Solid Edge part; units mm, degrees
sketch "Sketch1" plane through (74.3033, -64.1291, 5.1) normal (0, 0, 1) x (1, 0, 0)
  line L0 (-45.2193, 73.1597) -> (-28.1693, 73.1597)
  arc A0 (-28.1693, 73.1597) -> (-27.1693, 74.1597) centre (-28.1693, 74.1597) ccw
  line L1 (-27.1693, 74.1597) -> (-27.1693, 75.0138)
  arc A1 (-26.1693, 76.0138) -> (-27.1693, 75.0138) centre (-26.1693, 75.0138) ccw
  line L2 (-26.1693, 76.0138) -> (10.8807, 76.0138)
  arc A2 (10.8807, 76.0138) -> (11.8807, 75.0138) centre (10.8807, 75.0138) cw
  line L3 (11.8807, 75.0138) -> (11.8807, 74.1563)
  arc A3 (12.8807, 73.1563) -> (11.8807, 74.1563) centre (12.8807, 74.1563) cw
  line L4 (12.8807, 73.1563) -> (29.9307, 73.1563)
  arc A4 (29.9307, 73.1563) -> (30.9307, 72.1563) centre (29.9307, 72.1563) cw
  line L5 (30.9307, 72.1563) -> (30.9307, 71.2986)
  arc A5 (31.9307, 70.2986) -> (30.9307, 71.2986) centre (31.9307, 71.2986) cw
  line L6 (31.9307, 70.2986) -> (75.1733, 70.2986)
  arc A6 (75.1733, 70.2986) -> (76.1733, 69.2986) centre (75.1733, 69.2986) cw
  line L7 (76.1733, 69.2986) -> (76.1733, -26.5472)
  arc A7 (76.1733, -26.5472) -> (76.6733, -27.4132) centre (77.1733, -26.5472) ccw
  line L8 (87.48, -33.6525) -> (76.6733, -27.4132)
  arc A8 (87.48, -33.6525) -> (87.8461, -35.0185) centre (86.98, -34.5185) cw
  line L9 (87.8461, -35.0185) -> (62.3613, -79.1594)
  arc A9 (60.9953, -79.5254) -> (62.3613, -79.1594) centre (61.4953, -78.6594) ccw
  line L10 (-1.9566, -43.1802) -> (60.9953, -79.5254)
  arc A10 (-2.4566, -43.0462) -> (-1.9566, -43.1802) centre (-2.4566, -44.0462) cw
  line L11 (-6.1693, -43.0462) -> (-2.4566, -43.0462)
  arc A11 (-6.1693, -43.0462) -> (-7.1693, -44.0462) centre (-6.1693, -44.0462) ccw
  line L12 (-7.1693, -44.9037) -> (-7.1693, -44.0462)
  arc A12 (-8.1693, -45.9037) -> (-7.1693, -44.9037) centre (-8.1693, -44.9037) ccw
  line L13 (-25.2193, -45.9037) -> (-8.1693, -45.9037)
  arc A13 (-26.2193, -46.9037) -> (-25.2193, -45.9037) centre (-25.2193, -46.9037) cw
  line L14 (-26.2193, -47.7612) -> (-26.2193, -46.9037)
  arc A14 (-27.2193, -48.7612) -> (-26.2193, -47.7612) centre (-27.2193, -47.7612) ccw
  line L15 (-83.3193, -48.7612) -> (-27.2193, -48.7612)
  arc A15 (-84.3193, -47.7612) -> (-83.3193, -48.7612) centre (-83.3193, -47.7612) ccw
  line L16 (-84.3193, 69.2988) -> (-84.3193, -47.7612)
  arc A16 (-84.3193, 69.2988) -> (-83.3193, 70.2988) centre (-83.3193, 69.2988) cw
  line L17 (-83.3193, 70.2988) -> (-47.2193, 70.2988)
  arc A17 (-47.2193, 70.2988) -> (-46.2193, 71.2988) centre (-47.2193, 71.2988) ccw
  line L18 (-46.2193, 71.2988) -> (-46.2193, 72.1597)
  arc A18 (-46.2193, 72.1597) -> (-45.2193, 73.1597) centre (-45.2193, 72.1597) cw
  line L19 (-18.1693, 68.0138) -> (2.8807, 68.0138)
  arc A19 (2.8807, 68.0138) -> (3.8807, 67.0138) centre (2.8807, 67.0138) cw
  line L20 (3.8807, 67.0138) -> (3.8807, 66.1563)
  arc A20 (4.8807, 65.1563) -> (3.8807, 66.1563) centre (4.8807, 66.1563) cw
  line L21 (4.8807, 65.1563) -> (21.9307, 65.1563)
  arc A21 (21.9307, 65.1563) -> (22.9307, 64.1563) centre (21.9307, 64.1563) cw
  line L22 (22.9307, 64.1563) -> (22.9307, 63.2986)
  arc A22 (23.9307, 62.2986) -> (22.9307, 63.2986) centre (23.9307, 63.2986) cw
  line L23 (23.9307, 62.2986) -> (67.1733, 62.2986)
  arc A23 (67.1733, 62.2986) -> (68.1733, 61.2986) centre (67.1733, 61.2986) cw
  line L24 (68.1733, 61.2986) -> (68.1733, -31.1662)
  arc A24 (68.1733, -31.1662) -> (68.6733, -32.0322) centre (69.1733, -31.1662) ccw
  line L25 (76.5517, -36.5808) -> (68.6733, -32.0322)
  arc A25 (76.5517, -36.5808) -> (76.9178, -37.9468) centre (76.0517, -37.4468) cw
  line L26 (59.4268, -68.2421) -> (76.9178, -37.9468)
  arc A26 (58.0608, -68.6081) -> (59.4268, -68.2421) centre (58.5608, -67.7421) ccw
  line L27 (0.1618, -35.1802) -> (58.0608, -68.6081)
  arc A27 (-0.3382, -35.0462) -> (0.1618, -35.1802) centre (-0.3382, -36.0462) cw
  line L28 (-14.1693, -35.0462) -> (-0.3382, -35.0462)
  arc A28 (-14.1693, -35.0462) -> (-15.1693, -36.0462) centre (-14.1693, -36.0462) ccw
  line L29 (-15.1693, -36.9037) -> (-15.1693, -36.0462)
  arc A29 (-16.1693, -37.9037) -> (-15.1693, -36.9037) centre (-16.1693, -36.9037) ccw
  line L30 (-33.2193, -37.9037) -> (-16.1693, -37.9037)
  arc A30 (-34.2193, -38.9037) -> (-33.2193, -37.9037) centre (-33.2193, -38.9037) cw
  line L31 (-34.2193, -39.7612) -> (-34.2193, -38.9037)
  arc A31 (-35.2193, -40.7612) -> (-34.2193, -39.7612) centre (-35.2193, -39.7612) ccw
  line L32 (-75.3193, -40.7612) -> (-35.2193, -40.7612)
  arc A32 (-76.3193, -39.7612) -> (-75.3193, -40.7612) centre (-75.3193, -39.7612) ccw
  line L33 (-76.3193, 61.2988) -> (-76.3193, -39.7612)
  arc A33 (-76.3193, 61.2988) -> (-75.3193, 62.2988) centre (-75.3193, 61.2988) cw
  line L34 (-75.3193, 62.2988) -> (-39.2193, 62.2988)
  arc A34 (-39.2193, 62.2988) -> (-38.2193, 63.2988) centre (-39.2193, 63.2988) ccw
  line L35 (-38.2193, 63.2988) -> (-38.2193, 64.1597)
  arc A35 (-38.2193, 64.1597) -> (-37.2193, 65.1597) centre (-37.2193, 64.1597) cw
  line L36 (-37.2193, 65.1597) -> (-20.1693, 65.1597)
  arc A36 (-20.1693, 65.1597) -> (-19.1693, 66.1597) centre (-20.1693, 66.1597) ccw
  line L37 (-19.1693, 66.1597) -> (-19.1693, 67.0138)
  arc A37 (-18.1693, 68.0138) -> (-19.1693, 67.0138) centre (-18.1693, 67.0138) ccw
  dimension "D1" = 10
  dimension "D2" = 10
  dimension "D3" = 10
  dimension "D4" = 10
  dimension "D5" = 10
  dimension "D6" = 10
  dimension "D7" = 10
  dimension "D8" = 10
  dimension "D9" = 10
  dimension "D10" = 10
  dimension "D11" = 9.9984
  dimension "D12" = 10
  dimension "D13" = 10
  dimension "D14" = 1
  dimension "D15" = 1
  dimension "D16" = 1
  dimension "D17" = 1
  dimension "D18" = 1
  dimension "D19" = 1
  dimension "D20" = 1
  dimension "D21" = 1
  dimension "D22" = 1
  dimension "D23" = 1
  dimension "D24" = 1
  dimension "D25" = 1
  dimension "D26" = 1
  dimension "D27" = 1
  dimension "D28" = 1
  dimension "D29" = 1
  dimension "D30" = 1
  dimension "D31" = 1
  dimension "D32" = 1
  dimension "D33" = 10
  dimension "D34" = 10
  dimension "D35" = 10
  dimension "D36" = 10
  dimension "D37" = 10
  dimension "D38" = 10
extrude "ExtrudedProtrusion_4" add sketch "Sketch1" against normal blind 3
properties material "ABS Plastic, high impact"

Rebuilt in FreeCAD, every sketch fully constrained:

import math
import FreeCAD as App
import Part
import Sketcher
from FreeCAD import Vector
Q = App.Units.Quantity

doc = App.newDocument("Part")
params = doc.addObject("Spreadsheet::Sheet", "Params")
for row, (alias, value) in enumerate([
    ("sketch1_radius", "1 mm"),
    ("sketch1_width", "36.1 mm"),
    ("sketch1_width2", "56.1 mm"),
    ("sketch1_width3", "40.1 mm"),
    ("sketch1_width4", "17.05 mm"),
    ("pad1_length", "3 mm"),
], start=1):
    params.set(f"A{row}", alias)
    params.set(f"B{row}", "=" + value)
    params.setAlias(f"B{row}", alias)

body = doc.addObject("PartDesign::Body", "Body")

sketch1 = body.newObject("Sketcher::SketchObject", "Sketch")
sketch1.AttachmentSupport = (doc.getObject("XY_Plane"), [""])
sketch1.MapMode = "FlatFace"
sketch1.AttachmentOffset = App.Placement(Vector(0, 0, 5.1), App.Rotation())
sketch1.addGeometry([
    Part.LineSegment(Vector(46.134, 9.0306, 0), Vector(29.084, 9.0306, 0)),
    Part.ArcOfCircle(Part.Circle(Vector(29.084, 8.0306, 0), Vector(0, 0, 1), 1), math.radians(90), math.radians(180)),
    Part.LineSegment(Vector(28.084, 8.0306, 0), Vector(28.084, 7.1697, 0)),
    Part.ArcOfCircle(Part.Circle(Vector(27.084, 7.1697, 0), Vector(0, 0, 1), 1), math.radians(-90), math.radians(0)),
    Part.LineSegment(Vector(27.084, 6.1697, 0), Vector(-9.016, 6.1697, 0)),
    Part.ArcOfCircle(Part.Circle(Vector(-9.016, 5.1697, 0), Vector(0, 0, 1), 1), math.radians(90), math.radians(180)),
    Part.LineSegment(Vector(-10.016, 5.1697, 0), Vector(-10.016, -111.8903, 0)),
    Part.ArcOfCircle(Part.Circle(Vector(-9.016, -111.8903, 0), Vector(0, 0, 1), 1), math.radians(180), math.radians(270)),
    Part.LineSegment(Vector(-9.016, -112.8903, 0), Vector(47.084, -112.8903, 0)),
    Part.ArcOfCircle(Part.Circle(Vector(47.084, -111.8903, 0), Vector(0, 0, 1), 1), math.radians(-90), math.radians(0)),
    Part.LineSegment(Vector(48.084, -111.8903, 0), Vector(48.084, -111.0328, 0)),
    Part.ArcOfCircle(Part.Circle(Vector(49.084, -111.0328, 0), Vector(0, 0, 1), 1), math.radians(90), math.radians(180)),
    Part.LineSegment(Vector(49.084, -110.0328, 0), Vector(66.134, -110.0328, 0)),
    Part.ArcOfCircle(Part.Circle(Vector(66.134, -109.0328, 0), Vector(0, 0, 1), 1), math.radians(-90), math.radians(0)),
    Part.LineSegment(Vector(67.134, -109.0328, 0), Vector(67.134, -108.1753, 0)),
    Part.ArcOfCircle(Part.Circle(Vector(68.134, -108.1753, 0), Vector(0, 0, 1), 1), math.radians(90), math.radians(180)),
    Part.LineSegment(Vector(68.134, -107.1753, 0), Vector(71.8467, -107.1753, 0)),
    Part.ArcOfCircle(Part.Circle(Vector(71.8467, -108.1753, 0), Vector(0, 0, 1), 1), math.radians(59.999272), math.radians(90)),
    Part.LineSegment(Vector(72.3467, -107.3093, 0), Vector(135.2986, -143.6545, 0)),
    Part.ArcOfCircle(Part.Circle(Vector(135.7986, -142.7885, 0), Vector(0, 0, 1), 0.999978), math.radians(-120.000728), math.radians(-30.000728)),
    Part.LineSegment(Vector(136.6646, -143.2885, 0), Vector(162.1494, -99.1476, 0)),
    Part.ArcOfCircle(Part.Circle(Vector(161.2833, -98.6476, 0), Vector(0, 0, 1), 0.999978), math.radians(-29.997863), math.radians(59.999272)),
    Part.LineSegment(Vector(161.7833, -97.7816, 0), Vector(150.9766, -91.5423, 0)),
    Part.ArcOfCircle(Part.Circle(Vector(151.4766, -90.6763, 0), Vector(0, 0, 1), 1), math.radians(180), math.radians(239.999272)),
    Part.LineSegment(Vector(150.4766, -90.6763, 0), Vector(150.4766, 5.1695, 0)),
    Part.ArcOfCircle(Part.Circle(Vector(149.4766, 5.1695, 0), Vector(0, 0, 1), 1), math.radians(0), math.radians(90)),
    Part.LineSegment(Vector(149.4766, 6.1695, 0), Vector(106.234, 6.1695, 0)),
    Part.ArcOfCircle(Part.Circle(Vector(106.234, 7.1695, 0), Vector(0, 0, 1), 1), math.radians(180), math.radians(270)),
    Part.LineSegment(Vector(105.234, 7.1695, 0), Vector(105.234, 8.0272, 0)),
    Part.ArcOfCircle(Part.Circle(Vector(104.234, 8.0272, 0), Vector(0, 0, 1), 1), math.radians(0), math.radians(90)),
    Part.LineSegment(Vector(104.234, 9.0272, 0), Vector(87.184, 9.0272, 0)),
    Part.ArcOfCircle(Part.Circle(Vector(87.184, 10.0272, 0), Vector(0, 0, 1), 1), math.radians(180), math.radians(270)),
    Part.LineSegment(Vector(86.184, 10.0272, 0), Vector(86.184, 10.8847, 0)),
    Part.ArcOfCircle(Part.Circle(Vector(85.184, 10.8847, 0), Vector(0, 0, 1), 1), math.radians(0), math.radians(90)),
    Part.LineSegment(Vector(85.184, 11.8847, 0), Vector(48.134, 11.8847, 0)),
    Part.ArcOfCircle(Part.Circle(Vector(48.134, 10.8847, 0), Vector(0, 0, 1), 1), math.radians(90), math.radians(180)),
    Part.LineSegment(Vector(47.134, 10.8847, 0), Vector(47.134, 10.0306, 0)),
    Part.ArcOfCircle(Part.Circle(Vector(46.134, 10.0306, 0), Vector(0, 0, 1), 1), math.radians(-90), math.radians(0)),
    Part.ArcOfCircle(Part.Circle(Vector(56.134, 2.8847, 0), Vector(0, 0, 1), 1), math.radians(90), math.radians(180)),
    Part.LineSegment(Vector(56.134, 3.8847, 0), Vector(77.184, 3.8847, 0)),
    Part.ArcOfCircle(Part.Circle(Vector(77.184, 2.8847, 0), Vector(0, 0, 1), 1), math.radians(0), math.radians(90)),
    Part.LineSegment(Vector(78.184, 2.8847, 0), Vector(78.184, 2.0272, 0)),
    Part.ArcOfCircle(Part.Circle(Vector(79.184, 2.0272, 0), Vector(0, 0, 1), 1), math.radians(180), math.radians(270)),
    Part.LineSegment(Vector(79.184, 1.0272, 0), Vector(96.234, 1.0272, 0)),
    Part.ArcOfCircle(Part.Circle(Vector(96.234, 0.0272, 0), Vector(0, 0, 1), 1), math.radians(0), math.radians(90)),
    Part.LineSegment(Vector(97.234, 0.0272, 0), Vector(97.234, -0.8305, 0)),
    Part.ArcOfCircle(Part.Circle(Vector(98.234, -0.8305, 0), Vector(0, 0, 1), 1), math.radians(180), math.radians(270)),
    Part.LineSegment(Vector(98.234, -1.8305, 0), Vector(141.4766, -1.8305, 0)),
    Part.ArcOfCircle(Part.Circle(Vector(141.4766, -2.8305, 0), Vector(0, 0, 1), 1), math.radians(0), math.radians(90)),
    Part.LineSegment(Vector(142.4766, -2.8305, 0), Vector(142.4766, -95.2953, 0)),
    Part.ArcOfCircle(Part.Circle(Vector(143.4766, -95.2953, 0), Vector(0, 0, 1), 1), math.radians(180), math.radians(239.999272)),
    Part.LineSegment(Vector(142.9766, -96.1613, 0), Vector(150.855, -100.7099, 0)),
    Part.ArcOfCircle(Part.Circle(Vector(150.355, -101.5759, 0), Vector(0, 0, 1), 0.999978), math.radians(-29.997863), math.radians(59.999272)),
    Part.LineSegment(Vector(151.2211, -102.0759, 0), Vector(133.7301, -132.3712, 0)),
    Part.ArcOfCircle(Part.Circle(Vector(132.8641, -131.8712, 0), Vector(0, 0, 1), 0.999978), math.radians(-120.000728), math.radians(-30.000728)),
    Part.LineSegment(Vector(132.3641, -132.7372, 0), Vector(74.4651, -99.3093, 0)),
    Part.ArcOfCircle(Part.Circle(Vector(73.9651, -100.1753, 0), Vector(0, 0, 1), 1), math.radians(59.999272), math.radians(90)),
    Part.LineSegment(Vector(73.9651, -99.1753, 0), Vector(60.134, -99.1753, 0)),
    Part.ArcOfCircle(Part.Circle(Vector(60.134, -100.1753, 0), Vector(0, 0, 1), 1), math.radians(90), math.radians(180)),
    Part.LineSegment(Vector(59.134, -100.1753, 0), Vector(59.134, -101.0328, 0)),
    Part.ArcOfCircle(Part.Circle(Vector(58.134, -101.0328, 0), Vector(0, 0, 1), 1), math.radians(-90), math.radians(0)),
    Part.LineSegment(Vector(58.134, -102.0328, 0), Vector(41.084, -102.0328, 0)),
    Part.ArcOfCircle(Part.Circle(Vector(41.084, -103.0328, 0), Vector(0, 0, 1), 1), math.radians(90), math.radians(180)),
    Part.LineSegment(Vector(40.084, -103.0328, 0), Vector(40.084, -103.8903, 0)),
    Part.ArcOfCircle(Part.Circle(Vector(39.084, -103.8903, 0), Vector(0, 0, 1), 1), math.radians(-90), math.radians(0)),
    Part.LineSegment(Vector(39.084, -104.8903, 0), Vector(-1.016, -104.8903, 0)),
    Part.ArcOfCircle(Part.Circle(Vector(-1.016, -103.8903, 0), Vector(0, 0, 1), 1), math.radians(180), math.radians(270)),
    Part.LineSegment(Vector(-2.016, -103.8903, 0), Vector(-2.016, -2.8303, 0)),
    Part.ArcOfCircle(Part.Circle(Vector(-1.016, -2.8303, 0), Vector(0, 0, 1), 1), math.radians(90), math.radians(180)),
    Part.LineSegment(Vector(-1.016, -1.8303, 0), Vector(35.084, -1.8303, 0)),
    Part.ArcOfCircle(Part.Circle(Vector(35.084, -0.8303, 0), Vector(0, 0, 1), 1), math.radians(-90), math.radians(0)),
    Part.LineSegment(Vector(36.084, -0.8303, 0), Vector(36.084, 0.0306, 0)),
    Part.ArcOfCircle(Part.Circle(Vector(37.084, 0.0306, 0), Vector(0, 0, 1), 1), math.radians(90), math.radians(180)),
    Part.LineSegment(Vector(37.084, 1.0306, 0), Vector(54.134, 1.0306, 0)),
    Part.ArcOfCircle(Part.Circle(Vector(54.134, 2.0306, 0), Vector(0, 0, 1), 1), math.radians(-90), math.radians(0)),
    Part.LineSegment(Vector(55.134, 2.0306, 0), Vector(55.134, 2.8847, 0)),
], False)
sketch1.addConstraint([
    Sketcher.Constraint("Tangent", 0, 2, 1, 1),
    Sketcher.Constraint("Tangent", 1, 2, 2, 1),
    Sketcher.Constraint("Tangent", 2, 2, 3, 2),
    Sketcher.Constraint("Tangent", 3, 1, 4, 1),
    Sketcher.Constraint("Tangent", 4, 2, 5, 1),
    Sketcher.Constraint("Tangent", 5, 2, 6, 1),
    Sketcher.Constraint("Tangent", 6, 2, 7, 1),
    Sketcher.Constraint("Tangent", 7, 2, 8, 1),
    Sketcher.Constraint("Tangent", 8, 2, 9, 1),
    Sketcher.Constraint("Tangent", 9, 2, 10, 1),
    Sketcher.Constraint("Tangent", 10, 2, 11, 2),
    Sketcher.Constraint("Tangent", 11, 1, 12, 1),
    Sketcher.Constraint("Tangent", 12, 2, 13, 1),
    Sketcher.Constraint("Tangent", 13, 2, 14, 1),
    Sketcher.Constraint("Tangent", 14, 2, 15, 2),
    Sketcher.Constraint("Tangent", 15, 1, 16, 1),
    Sketcher.Constraint("Tangent", 16, 2, 17, 2),
    Sketcher.Constraint("Tangent", 17, 1, 18, 1),
    Sketcher.Constraint("Tangent", 18, 2, 19, 1),
    Sketcher.Constraint("Tangent", 19, 2, 20, 1),
    Sketcher.Constraint("Tangent", 20, 2, 21, 1),
    Sketcher.Constraint("Tangent", 21, 2, 22, 1),
    Sketcher.Constraint("Tangent", 22, 2, 23, 2),
    Sketcher.Constraint("Tangent", 23, 1, 24, 1),
    Sketcher.Constraint("Tangent", 24, 2, 25, 1),
    Sketcher.Constraint("Tangent", 25, 2, 26, 1),
    Sketcher.Constraint("Tangent", 26, 2, 27, 2),
    Sketcher.Constraint("Tangent", 27, 1, 28, 1),
    Sketcher.Constraint("Tangent", 28, 2, 29, 1),
    Sketcher.Constraint("Tangent", 29, 2, 30, 1),
    Sketcher.Constraint("Tangent", 30, 2, 31, 2),
    Sketcher.Constraint("Tangent", 31, 1, 32, 1),
    Sketcher.Constraint("Tangent", 32, 2, 33, 1),
    Sketcher.Constraint("Tangent", 33, 2, 34, 1),
    Sketcher.Constraint("Tangent", 34, 2, 35, 1),
    Sketcher.Constraint("Tangent", 35, 2, 36, 1),
    Sketcher.Constraint("Tangent", 36, 2, 37, 2),
    Sketcher.Constraint("Tangent", 37, 1, 0, 1),
    Sketcher.Constraint("Tangent", 38, 1, 39, 1),
    Sketcher.Constraint("Tangent", 39, 2, 40, 2),
    Sketcher.Constraint("Tangent", 40, 1, 41, 1),
    Sketcher.Constraint("Tangent", 41, 2, 42, 1),
    Sketcher.Constraint("Tangent", 42, 2, 43, 1),
    Sketcher.Constraint("Tangent", 43, 2, 44, 2),
    Sketcher.Constraint("Tangent", 44, 1, 45, 1),
    Sketcher.Constraint("Tangent", 45, 2, 46, 1),
    Sketcher.Constraint("Tangent", 46, 2, 47, 1),
    Sketcher.Constraint("Tangent", 47, 2, 48, 2),
    Sketcher.Constraint("Tangent", 48, 1, 49, 1),
    Sketcher.Constraint("Tangent", 49, 2, 50, 1),
    Sketcher.Constraint("Tangent", 50, 2, 51, 1),
    Sketcher.Constraint("Tangent", 51, 2, 52, 2),
    Sketcher.Constraint("Tangent", 52, 1, 53, 1),
    Sketcher.Constraint("Tangent", 53, 2, 54, 2),
    Sketcher.Constraint("Tangent", 54, 1, 55, 1),
    Sketcher.Constraint("Tangent", 55, 2, 56, 1),
    Sketcher.Constraint("Tangent", 56, 2, 57, 1),
    Sketcher.Constraint("Tangent", 57, 2, 58, 1),
    Sketcher.Constraint("Tangent", 58, 2, 59, 1),
    Sketcher.Constraint("Tangent", 59, 2, 60, 2),
    Sketcher.Constraint("Tangent", 60, 1, 61, 1),
    Sketcher.Constraint("Tangent", 61, 2, 62, 1),
    Sketcher.Constraint("Tangent", 62, 2, 63, 1),
    Sketcher.Constraint("Tangent", 63, 2, 64, 2),
    Sketcher.Constraint("Tangent", 64, 1, 65, 1),
    Sketcher.Constraint("Tangent", 65, 2, 66, 2),
    Sketcher.Constraint("Tangent", 66, 1, 67, 1),
    Sketcher.Constraint("Tangent", 67, 2, 68, 2),
    Sketcher.Constraint("Tangent", 68, 1, 69, 1),
    Sketcher.Constraint("Tangent", 69, 2, 70, 1),
    Sketcher.Constraint("Tangent", 70, 2, 71, 1),
    Sketcher.Constraint("Tangent", 71, 2, 72, 2),
    Sketcher.Constraint("Tangent", 72, 1, 73, 1),
    Sketcher.Constraint("Tangent", 73, 2, 74, 1),
    Sketcher.Constraint("Tangent", 74, 2, 75, 1),
    Sketcher.Constraint("Tangent", 75, 2, 38, 2),
    Sketcher.Constraint("Horizontal", 0),
    Sketcher.Constraint("Vertical", 2),
    Sketcher.Constraint("Horizontal", 4),
    Sketcher.Constraint("Vertical", 6),
    Sketcher.Constraint("Horizontal", 8),
    Sketcher.Constraint("Vertical", 10),
    Sketcher.Constraint("Horizontal", 12),
    Sketcher.Constraint("Vertical", 14),
    Sketcher.Constraint("Horizontal", 16),
    Sketcher.Constraint("Vertical", 24),
    Sketcher.Constraint("Horizontal", 26),
    Sketcher.Constraint("Vertical", 28),
    Sketcher.Constraint("Horizontal", 30),
    Sketcher.Constraint("Vertical", 32),
    Sketcher.Constraint("Horizontal", 34),
    Sketcher.Constraint("Vertical", 36),
    Sketcher.Constraint("Horizontal", 39),
    Sketcher.Constraint("Vertical", 41),
    Sketcher.Constraint("Horizontal", 43),
    Sketcher.Constraint("Vertical", 45),
    Sketcher.Constraint("Horizontal", 47),
    Sketcher.Constraint("Vertical", 49),
    Sketcher.Constraint("Horizontal", 57),
    Sketcher.Constraint("Vertical", 59),
    Sketcher.Constraint("Horizontal", 61),
    Sketcher.Constraint("Vertical", 63),
    Sketcher.Constraint("Horizontal", 65),
    Sketcher.Constraint("Vertical", 67),
    Sketcher.Constraint("Horizontal", 69),
    Sketcher.Constraint("Vertical", 71),
    Sketcher.Constraint("Horizontal", 73),
    Sketcher.Constraint("Vertical", 75),
    Sketcher.Constraint("Equal", 1, 3),
    Sketcher.Constraint("Equal", 3, 5),
    Sketcher.Constraint("Equal", 5, 7),
    Sketcher.Constraint("Equal", 7, 9),
    Sketcher.Constraint("Equal", 9, 11),
    Sketcher.Constraint("Equal", 11, 13),
    Sketcher.Constraint("Equal", 13, 15),
    Sketcher.Constraint("Equal", 15, 17),
    Sketcher.Constraint("Equal", 17, 19),
    Sketcher.Constraint("Equal", 19, 21),
    Sketcher.Constraint("Equal", 21, 23),
    Sketcher.Constraint("Equal", 23, 25),
    Sketcher.Constraint("Equal", 25, 27),
    Sketcher.Constraint("Equal", 27, 29),
    Sketcher.Constraint("Equal", 29, 31),
    Sketcher.Constraint("Equal", 31, 33),
    Sketcher.Constraint("Equal", 33, 35),
    Sketcher.Constraint("Equal", 35, 37),
    Sketcher.Constraint("Equal", 37, 38),
    Sketcher.Constraint("Equal", 38, 40),
    Sketcher.Constraint("Equal", 40, 42),
    Sketcher.Constraint("Equal", 42, 44),
    Sketcher.Constraint("Equal", 44, 46),
    Sketcher.Constraint("Equal", 46, 48),
    Sketcher.Constraint("Equal", 48, 50),
    Sketcher.Constraint("Equal", 50, 52),
    Sketcher.Constraint("Equal", 52, 54),
    Sketcher.Constraint("Equal", 54, 56),
    Sketcher.Constraint("Equal", 56, 58),
    Sketcher.Constraint("Equal", 58, 60),
    Sketcher.Constraint("Equal", 60, 62),
    Sketcher.Constraint("Equal", 62, 64),
    Sketcher.Constraint("Equal", 64, 66),
    Sketcher.Constraint("Equal", 66, 68),
    Sketcher.Constraint("Equal", 68, 70),
    Sketcher.Constraint("Equal", 70, 72),
    Sketcher.Constraint("Equal", 72, 74),
    Sketcher.Constraint("Perpendicular", 18, 20),
    Sketcher.Constraint("Perpendicular", 20, 22),
    Sketcher.Constraint("Parallel", 22, 51),
    Sketcher.Constraint("Perpendicular", 51, 53),
    Sketcher.Constraint("Perpendicular", 53, 55),
    Sketcher.Constraint("Horizontal", 5, 3, 25, 3),
    Sketcher.Constraint("Horizontal", 48, 3, 68, 3),
    Sketcher.Constraint("Equal", 0, 12),
    Sketcher.Constraint("Equal", 12, 30),
    Sketcher.Constraint("Equal", 30, 43),
    Sketcher.Constraint("Equal", 26, 47),
    Sketcher.Constraint("Equal", 43, 61),
    Sketcher.Constraint("Equal", 4, 69),
    Sketcher.Constraint("Equal", 61, 73),
    Sketcher.Constraint("Equal", 10, 14),
    Sketcher.Constraint("Equal", 14, 28),
    Sketcher.Constraint("Equal", 14, 32),
    Sketcher.Constraint("Equal", 32, 41),
    Sketcher.Constraint("Equal", 28, 45),
    Sketcher.Constraint("Equal", 45, 59),
    Sketcher.Constraint("Equal", 59, 63),
    Sketcher.Constraint("Equal", 2, 71),
    Sketcher.Constraint("Radius", 1, Q("1 mm")),
    Sketcher.Constraint("Angle", 18, Q("-30 deg")),
    Sketcher.Constraint("DistanceX", 4, 2, 4, 1, Q("36.1 mm")),
    Sketcher.Constraint("DistanceX", 8, 1, 8, 2, Q("56.1 mm")),
    Sketcher.Constraint("DistanceX", 65, 2, 65, 1, Q("40.1 mm")),
    Sketcher.Constraint("DistanceX", 0, 2, 0, 1, Q("17.05 mm")),
    Sketcher.Constraint("DistanceX", 34, 2, 34, 1, Q("37.05 mm")),
    Sketcher.Constraint("DistanceX", 39, 1, 39, 2, Q("21.05 mm")),
    Sketcher.Constraint("DistanceY", 6, 2, 6, 1, Q("117.06 mm")),
    Sketcher.Constraint("DistanceY", 67, 1, 67, 2, Q("101.06 mm")),
    Sketcher.Constraint("DistanceX", 57, 2, 57, 1, Q("13.831 mm")),
    Sketcher.Constraint("DistanceY", 2, 2, 2, 1, Q("0.861 mm")),
    Sketcher.Constraint("DistanceY", 36, 2, 36, 1, Q("0.854 mm")),
    Sketcher.Constraint("DistanceY", 51, 2, -1, 1, Q("100.71 mm")),
    Sketcher.Constraint("DistanceX", -1, 1, 53, 2, Q("133.73 mm")),
    Sketcher.Constraint("Distance", 53, Q("34.982 mm")),
    Sketcher.Constraint("Distance", 55, Q("66.856 mm")),
    Sketcher.Constraint("DistanceX", 16, 1, 16, 2, Q("3.7127 mm")),
    Sketcher.Constraint("DistanceX", 26, 2, 26, 1, Q("43.2426 mm")),
    Sketcher.Constraint("DistanceY", 24, 1, 24, 2, Q("95.8458 mm")),
    Sketcher.Constraint("DistanceX", -1, 1, 1, 3, Q("29.084 mm")),
    Sketcher.Constraint("Distance", 18, Q("72.6905 mm")),
    Sketcher.Constraint("DistanceY", -1, 1, 1, 3, Q("8.0306 mm")),
])
sketch1.setExpression("Constraints[167]", "Params.sketch1_radius")
sketch1.setExpression("Constraints[169]", "Params.sketch1_width")
sketch1.setExpression("Constraints[170]", "Params.sketch1_width2")
sketch1.setExpression("Constraints[171]", "Params.sketch1_width3")
sketch1.setExpression("Constraints[172]", "Params.sketch1_width4")
pad1 = body.newObject("PartDesign::Pad", "Pad")
pad1.Profile = sketch1
pad1.setExpression("Length", "Params.pad1_length")
pad1.Reversed = True

doc.recompute()
